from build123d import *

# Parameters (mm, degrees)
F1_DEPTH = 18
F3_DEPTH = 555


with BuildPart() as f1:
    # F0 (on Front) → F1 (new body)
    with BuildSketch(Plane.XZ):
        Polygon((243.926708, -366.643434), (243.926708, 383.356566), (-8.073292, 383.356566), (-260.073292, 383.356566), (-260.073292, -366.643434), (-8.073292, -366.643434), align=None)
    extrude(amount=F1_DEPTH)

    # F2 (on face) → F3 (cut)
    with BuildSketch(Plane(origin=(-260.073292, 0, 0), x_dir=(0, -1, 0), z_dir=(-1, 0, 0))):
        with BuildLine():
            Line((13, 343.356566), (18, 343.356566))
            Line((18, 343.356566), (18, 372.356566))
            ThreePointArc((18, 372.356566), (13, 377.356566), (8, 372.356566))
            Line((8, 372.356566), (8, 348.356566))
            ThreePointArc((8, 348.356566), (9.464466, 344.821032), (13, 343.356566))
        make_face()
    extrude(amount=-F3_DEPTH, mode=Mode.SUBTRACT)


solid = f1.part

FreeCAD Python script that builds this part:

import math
import FreeCAD as App
import Part
import Sketcher
Q = App.Units.Quantity

doc = App.newDocument("Part")
params = doc.addObject("Spreadsheet::Sheet", "Params")
for row, (alias, value) in enumerate([
    ("sketch1_width", "504 mm"),
    ("sketch1_height", "750 mm"),
    ("pad1_length", "18 mm"),
    ("sketch2_radius", "5 mm"),
    ("sketch2_height", "29 mm"),
    ("pocket1_length", "555 mm"),
], start=1):
    params.set(f"A{row}", alias)
    params.set(f"B{row}", "=" + value)
    params.setAlias(f"B{row}", alias)

body = doc.addObject("PartDesign::Body", "Body")

# Sketch on XZ plane
sketch1 = doc.addObject("Sketcher::SketchObject", "Sketch")
body.addObject(sketch1)
sketch1.AttachmentSupport = (doc.XZ_Plane, [""])
sketch1.MapMode = "FlatFace"
sketch1.addGeometry([
    Part.LineSegment(App.Vector(244, -367, 0), App.Vector(244, 383, 0)),
    Part.LineSegment(App.Vector(244, 383, 0), App.Vector(-260, 383, 0)),
    Part.LineSegment(App.Vector(-260, 383, 0), App.Vector(-260, -367, 0)),
    Part.LineSegment(App.Vector(-260, -367, 0), App.Vector(244, -367, 0)),
], False)
sketch1.addConstraint([
    Sketcher.Constraint("Coincident", 0, 2, 1, 1),
    Sketcher.Constraint("Coincident", 1, 2, 2, 1),
    Sketcher.Constraint("Coincident", 2, 2, 3, 1),
    Sketcher.Constraint("Coincident", 3, 2, 0, 1),
    Sketcher.Constraint("Vertical", 0),
    Sketcher.Constraint("Horizontal", 1),
    Sketcher.Constraint("Vertical", 2),
    Sketcher.Constraint("Horizontal", 3),
    Sketcher.Constraint("DistanceX", 1, 2, 1, 1, Q("504 mm")),
    Sketcher.Constraint("DistanceY", 0, 1, 0, 2, Q("750 mm")),
    Sketcher.Constraint("DistanceX", 1, 2, -1, 1, Q("260.073292 mm")),
    Sketcher.Constraint("DistanceY", -1, 1, 0, 2, Q("383.356566 mm")),
])
sketch1.setExpression("Constraints[8]", "Params.sketch1_width")
sketch1.setExpression("Constraints[9]", "Params.sketch1_height")
pad1 = doc.addObject("PartDesign::Pad", "Pad")
body.addObject(pad1)
pad1.Profile = sketch1
pad1.setExpression("Length", "Params.pad1_length")

# Sketch on YZ plane
sketch2 = doc.addObject("Sketcher::SketchObject", "Sketch001")
body.addObject(sketch2)
sketch2.AttachmentSupport = (doc.YZ_Plane, [""])
sketch2.MapMode = "FlatFace"
sketch2.AttachmentOffset = App.Placement(App.Vector(0, 0, -260.073292), App.Rotation())
sketch2.addGeometry([
    Part.LineSegment(App.Vector(-13, 343.4, 0), App.Vector(-18, 343.4, 0)),  # 0
    Part.LineSegment(App.Vector(-18, 343.4, 0), App.Vector(-18, 372.4, 0)),  # 1
    Part.ArcOfCircle(Part.Circle(App.Vector(-13, 372.4, 0), App.Vector(0, 0, 1), 5), math.radians(0), math.radians(180)),  # 2
    Part.LineSegment(App.Vector(-8, 372.4, 0), App.Vector(-8, 348.4, 0)),  # 3
    Part.ArcOfCircle(Part.Circle(App.Vector(-13, 348.4, 0), App.Vector(0, 0, 1), 5), math.radians(-90), math.radians(0)),  # 4
], False)
sketch2.addConstraint([
    Sketcher.Constraint("Coincident", 0, 2, 1, 1),
    Sketcher.Constraint("Tangent", 1, 2, 2, 2),
    Sketcher.Constraint("Tangent", 2, 1, 3, 1),
    Sketcher.Constraint("Tangent", 3, 2, 4, 2),
    Sketcher.Constraint("Tangent", 4, 1, 0, 1),
    Sketcher.Constraint("Horizontal", 0),
    Sketcher.Constraint("Vertical", 1),
    Sketcher.Constraint("Vertical", 3),
    Sketcher.Constraint("Equal", 2, 4),
    Sketcher.Constraint("Radius", 2, Q("5 mm")),
    Sketcher.Constraint("DistanceY", 1, 1, 1, 2, Q("29 mm")),
    Sketcher.Constraint("DistanceX", 2, 3, -1, 1, Q("13 mm")),
    Sketcher.Constraint("DistanceY", -1, 1, 2, 3, Q("372.356566 mm")),
])
sketch2.setExpression("Constraints[9]", "Params.sketch2_radius")
sketch2.setExpression("Constraints[10]", "Params.sketch2_height")
pocket1 = doc.addObject("PartDesign::Pocket", "Pocket")
body.addObject(pocket1)
pocket1.Profile = sketch2
pocket1.setExpression("Length", "Params.pocket1_length")
pocket1.Reversed = True

doc.recompute()
